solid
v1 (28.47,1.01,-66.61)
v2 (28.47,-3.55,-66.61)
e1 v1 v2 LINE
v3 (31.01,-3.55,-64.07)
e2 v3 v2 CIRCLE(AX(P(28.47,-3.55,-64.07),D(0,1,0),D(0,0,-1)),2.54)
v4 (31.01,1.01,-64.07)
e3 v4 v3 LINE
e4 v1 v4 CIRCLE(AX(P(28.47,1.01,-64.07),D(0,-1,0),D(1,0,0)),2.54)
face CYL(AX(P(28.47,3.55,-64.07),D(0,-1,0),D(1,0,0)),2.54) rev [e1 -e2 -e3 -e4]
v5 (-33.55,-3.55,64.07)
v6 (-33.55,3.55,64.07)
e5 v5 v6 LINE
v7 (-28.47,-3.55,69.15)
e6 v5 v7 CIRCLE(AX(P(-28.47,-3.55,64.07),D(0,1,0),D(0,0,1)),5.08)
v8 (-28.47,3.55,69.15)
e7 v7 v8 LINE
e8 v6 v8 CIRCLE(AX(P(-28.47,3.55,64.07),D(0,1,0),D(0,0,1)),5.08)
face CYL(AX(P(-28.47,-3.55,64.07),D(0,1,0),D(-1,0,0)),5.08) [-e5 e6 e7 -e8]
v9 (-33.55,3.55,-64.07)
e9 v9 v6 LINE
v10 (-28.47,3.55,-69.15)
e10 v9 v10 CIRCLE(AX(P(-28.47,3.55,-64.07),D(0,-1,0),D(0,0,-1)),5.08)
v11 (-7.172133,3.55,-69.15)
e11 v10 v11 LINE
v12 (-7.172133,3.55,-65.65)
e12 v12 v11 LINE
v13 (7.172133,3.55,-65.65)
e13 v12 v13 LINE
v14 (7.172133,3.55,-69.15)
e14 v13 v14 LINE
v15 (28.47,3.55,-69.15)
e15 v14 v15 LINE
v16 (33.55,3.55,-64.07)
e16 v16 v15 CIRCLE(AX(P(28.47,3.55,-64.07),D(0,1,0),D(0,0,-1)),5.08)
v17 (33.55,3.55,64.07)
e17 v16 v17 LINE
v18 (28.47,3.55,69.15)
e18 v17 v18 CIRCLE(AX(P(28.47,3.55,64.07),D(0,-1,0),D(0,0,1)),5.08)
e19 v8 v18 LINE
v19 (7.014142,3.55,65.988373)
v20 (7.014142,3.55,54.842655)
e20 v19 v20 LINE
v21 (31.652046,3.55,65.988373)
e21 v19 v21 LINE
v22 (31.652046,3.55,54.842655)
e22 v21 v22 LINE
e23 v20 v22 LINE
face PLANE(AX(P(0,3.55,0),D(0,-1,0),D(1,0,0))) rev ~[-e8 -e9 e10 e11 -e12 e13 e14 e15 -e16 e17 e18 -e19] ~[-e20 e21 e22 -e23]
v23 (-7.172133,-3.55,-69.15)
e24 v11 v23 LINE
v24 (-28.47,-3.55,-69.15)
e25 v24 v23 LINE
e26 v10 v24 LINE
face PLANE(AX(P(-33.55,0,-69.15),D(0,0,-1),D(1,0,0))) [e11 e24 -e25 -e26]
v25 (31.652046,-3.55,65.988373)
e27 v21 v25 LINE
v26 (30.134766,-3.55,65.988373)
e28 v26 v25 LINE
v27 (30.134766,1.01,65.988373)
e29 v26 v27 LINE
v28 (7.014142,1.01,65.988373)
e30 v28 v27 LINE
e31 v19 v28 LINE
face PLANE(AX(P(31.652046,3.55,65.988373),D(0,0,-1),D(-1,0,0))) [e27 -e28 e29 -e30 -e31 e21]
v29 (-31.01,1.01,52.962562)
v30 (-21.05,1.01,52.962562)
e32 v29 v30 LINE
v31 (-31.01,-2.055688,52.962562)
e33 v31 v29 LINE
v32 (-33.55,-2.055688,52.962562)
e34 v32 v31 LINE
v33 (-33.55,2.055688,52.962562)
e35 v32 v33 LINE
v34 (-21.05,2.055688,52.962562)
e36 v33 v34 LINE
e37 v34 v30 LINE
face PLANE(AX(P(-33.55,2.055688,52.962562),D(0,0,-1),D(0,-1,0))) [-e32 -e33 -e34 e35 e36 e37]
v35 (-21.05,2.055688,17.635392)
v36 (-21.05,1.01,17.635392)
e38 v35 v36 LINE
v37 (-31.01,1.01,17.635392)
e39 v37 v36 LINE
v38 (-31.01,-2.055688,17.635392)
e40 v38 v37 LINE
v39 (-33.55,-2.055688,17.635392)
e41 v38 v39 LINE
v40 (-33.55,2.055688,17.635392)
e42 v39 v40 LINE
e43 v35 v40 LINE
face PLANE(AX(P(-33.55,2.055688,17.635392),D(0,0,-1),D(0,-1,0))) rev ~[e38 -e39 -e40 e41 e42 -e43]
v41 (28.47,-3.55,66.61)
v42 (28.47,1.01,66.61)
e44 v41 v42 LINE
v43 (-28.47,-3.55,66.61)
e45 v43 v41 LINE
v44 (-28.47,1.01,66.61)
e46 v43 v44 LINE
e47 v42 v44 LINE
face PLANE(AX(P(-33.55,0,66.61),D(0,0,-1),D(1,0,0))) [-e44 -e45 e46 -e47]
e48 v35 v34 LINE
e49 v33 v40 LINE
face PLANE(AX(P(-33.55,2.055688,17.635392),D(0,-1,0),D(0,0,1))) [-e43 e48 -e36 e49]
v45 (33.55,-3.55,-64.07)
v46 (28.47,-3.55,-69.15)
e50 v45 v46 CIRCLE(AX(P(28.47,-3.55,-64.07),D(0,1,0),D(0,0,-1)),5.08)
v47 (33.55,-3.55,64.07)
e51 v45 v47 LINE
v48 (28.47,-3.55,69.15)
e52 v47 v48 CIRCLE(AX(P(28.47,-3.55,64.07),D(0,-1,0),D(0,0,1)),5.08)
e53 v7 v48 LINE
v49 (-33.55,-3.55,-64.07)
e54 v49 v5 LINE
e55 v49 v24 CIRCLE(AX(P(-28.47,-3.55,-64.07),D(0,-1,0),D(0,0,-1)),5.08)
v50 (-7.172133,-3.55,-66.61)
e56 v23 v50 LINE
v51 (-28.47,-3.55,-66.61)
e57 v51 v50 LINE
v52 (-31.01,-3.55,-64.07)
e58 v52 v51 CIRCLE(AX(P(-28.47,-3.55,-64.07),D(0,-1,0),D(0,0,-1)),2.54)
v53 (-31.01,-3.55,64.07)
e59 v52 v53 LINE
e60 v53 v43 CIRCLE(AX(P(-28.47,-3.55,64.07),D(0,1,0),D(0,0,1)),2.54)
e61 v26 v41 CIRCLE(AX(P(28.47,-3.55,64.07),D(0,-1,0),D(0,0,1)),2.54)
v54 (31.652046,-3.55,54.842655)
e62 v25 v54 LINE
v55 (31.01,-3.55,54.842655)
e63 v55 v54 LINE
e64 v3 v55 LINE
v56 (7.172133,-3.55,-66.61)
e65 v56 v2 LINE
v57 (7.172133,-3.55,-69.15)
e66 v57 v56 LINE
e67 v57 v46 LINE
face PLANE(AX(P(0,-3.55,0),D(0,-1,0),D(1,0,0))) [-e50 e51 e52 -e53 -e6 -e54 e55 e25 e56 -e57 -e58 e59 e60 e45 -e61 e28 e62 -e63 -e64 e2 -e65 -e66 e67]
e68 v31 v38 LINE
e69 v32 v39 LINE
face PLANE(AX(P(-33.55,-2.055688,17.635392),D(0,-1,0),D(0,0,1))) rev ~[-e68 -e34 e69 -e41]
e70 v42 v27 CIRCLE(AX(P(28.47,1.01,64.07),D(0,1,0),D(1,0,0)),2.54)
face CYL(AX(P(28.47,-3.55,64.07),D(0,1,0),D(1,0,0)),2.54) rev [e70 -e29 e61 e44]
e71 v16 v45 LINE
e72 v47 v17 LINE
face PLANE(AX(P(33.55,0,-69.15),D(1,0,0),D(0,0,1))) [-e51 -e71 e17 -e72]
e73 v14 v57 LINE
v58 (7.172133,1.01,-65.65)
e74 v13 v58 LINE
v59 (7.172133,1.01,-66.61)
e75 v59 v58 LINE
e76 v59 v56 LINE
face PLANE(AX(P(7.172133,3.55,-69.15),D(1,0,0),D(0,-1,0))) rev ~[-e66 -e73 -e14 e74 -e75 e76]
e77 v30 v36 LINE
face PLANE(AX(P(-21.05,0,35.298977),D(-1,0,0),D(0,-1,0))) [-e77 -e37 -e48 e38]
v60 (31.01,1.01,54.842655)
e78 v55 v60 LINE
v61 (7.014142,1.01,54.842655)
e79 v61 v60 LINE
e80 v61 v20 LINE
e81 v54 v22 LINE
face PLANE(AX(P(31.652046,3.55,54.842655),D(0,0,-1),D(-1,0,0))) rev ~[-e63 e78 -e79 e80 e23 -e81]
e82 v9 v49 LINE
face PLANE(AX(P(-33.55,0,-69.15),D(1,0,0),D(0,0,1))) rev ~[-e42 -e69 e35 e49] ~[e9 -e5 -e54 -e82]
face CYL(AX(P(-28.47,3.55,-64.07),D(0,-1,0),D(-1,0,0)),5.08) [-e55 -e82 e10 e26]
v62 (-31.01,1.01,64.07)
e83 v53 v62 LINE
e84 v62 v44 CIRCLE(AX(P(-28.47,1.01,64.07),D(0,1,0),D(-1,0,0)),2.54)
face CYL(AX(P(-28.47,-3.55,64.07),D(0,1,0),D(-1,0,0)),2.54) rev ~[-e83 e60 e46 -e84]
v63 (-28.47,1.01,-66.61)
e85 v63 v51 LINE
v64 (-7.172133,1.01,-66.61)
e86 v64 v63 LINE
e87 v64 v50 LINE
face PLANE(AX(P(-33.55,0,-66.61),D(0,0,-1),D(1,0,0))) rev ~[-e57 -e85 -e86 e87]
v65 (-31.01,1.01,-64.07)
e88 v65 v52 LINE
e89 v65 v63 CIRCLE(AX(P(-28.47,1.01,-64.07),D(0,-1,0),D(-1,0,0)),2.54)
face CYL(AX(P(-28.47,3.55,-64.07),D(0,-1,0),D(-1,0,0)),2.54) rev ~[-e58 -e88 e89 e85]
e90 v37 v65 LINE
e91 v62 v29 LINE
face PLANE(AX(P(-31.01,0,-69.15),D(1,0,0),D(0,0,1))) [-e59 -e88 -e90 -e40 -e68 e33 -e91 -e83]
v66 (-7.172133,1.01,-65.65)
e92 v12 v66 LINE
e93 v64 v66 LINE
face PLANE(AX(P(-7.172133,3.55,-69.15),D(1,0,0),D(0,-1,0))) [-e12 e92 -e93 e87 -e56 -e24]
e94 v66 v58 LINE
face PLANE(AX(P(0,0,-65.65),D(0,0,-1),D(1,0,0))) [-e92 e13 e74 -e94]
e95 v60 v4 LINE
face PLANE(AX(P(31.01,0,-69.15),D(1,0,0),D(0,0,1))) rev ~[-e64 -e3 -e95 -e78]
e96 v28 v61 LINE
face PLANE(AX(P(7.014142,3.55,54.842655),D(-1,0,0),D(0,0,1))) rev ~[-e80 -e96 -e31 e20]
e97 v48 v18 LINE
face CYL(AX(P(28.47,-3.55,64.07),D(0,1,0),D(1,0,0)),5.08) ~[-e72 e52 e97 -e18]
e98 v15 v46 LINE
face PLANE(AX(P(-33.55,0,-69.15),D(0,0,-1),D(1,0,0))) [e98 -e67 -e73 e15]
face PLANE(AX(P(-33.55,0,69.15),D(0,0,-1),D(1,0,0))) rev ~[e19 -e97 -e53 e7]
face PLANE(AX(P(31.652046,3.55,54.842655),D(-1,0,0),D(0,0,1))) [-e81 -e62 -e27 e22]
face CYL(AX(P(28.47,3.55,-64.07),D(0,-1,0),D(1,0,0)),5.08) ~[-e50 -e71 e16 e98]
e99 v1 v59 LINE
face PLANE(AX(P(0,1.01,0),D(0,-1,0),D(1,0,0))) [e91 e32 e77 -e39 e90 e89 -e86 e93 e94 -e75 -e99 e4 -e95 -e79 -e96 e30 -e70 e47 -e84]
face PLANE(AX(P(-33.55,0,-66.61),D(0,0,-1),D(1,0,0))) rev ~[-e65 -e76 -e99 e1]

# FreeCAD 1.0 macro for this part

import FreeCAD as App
import Part
import Sketcher

V = App.Vector


def edges_at(feature, points):
    """Names of the edges that pass closest to the given points."""
    edges = feature.Shape.Edges
    near = lambda p: min(range(len(edges)), key=lambda i: edges[i].distToShape(Part.Vertex(*p))[0])
    return sorted({f"Edge{near(p) + 1}" for p in points})


def faces_at(feature, points):
    """Names of the faces that lie closest to the given points."""
    faces = feature.Shape.Faces
    near = lambda p: min(range(len(faces)), key=lambda i: faces[i].distToShape(Part.Vertex(*p))[0])
    return sorted({f"Face{near(p) + 1}" for p in points})

doc = App.newDocument("Part")
body = doc.addObject("PartDesign::Body", "Body")

# Sketch on XZ plane
sketch1 = body.newObject("Sketcher::SketchObject", "Sketch")
sketch1.AttachmentSupport = (doc.getObject("XZ_Plane"), [""])
sketch1.MapMode = "FlatFace"
sketch1.addGeometry([
    Part.LineSegment(V(-34, 69, 0), V(-34, -69, 0)),
    Part.LineSegment(V(-34, -69, 0), V(34, -69, 0)),
    Part.LineSegment(V(34, -69, 0), V(34, 69, 0)),
    Part.LineSegment(V(34, 69, 0), V(-34, 69, 0)),
], False)
sketch1.addConstraint([
    Sketcher.Constraint("Coincident", 0, 2, 1, 1),
    Sketcher.Constraint("Coincident", 1, 2, 2, 1),
    Sketcher.Constraint("Coincident", 2, 2, 3, 1),
    Sketcher.Constraint("Coincident", 3, 2, 0, 1),
    Sketcher.Constraint("Vertical", 0),
    Sketcher.Constraint("Horizontal", 1),
    Sketcher.Constraint("Vertical", 2),
    Sketcher.Constraint("Horizontal", 3),
    Sketcher.Constraint("Symmetric", 0, 2, 2, 2, -1, 1),
    Sketcher.Constraint("DistanceX", 1, 1, 1, 2, 67.1),
    Sketcher.Constraint("DistanceY", 0, 2, 0, 1, 138.3),
])
pad1 = body.newObject("PartDesign::Pad", "Pad")
pad1.Profile = sketch1
pad1.Length = 7.1
pad1.Midplane = True
doc.recompute()

fillet = body.newObject("PartDesign::Fillet", "Fillet")
fillet.Base = (pad1, edges_at(pad1, [
    (-33.55, 0, 69.15),
    (33.55, 0, 69.15),
    (33.55, 0, -69.15),
    (-33.55, 0, -69.15),
]))
fillet.Radius = 5.08
doc.recompute()

thickness = body.newObject("PartDesign::Thickness", "Thickness")
thickness.Base = (fillet, faces_at(fillet, [(0, -3.55, 0)]))
thickness.Value = 2.54
thickness.Reversed = True
thickness.Join = "Arc"

# Sketch on XZ plane
sketch2 = body.newObject("Sketcher::SketchObject", "Sketch001")
sketch2.AttachmentSupport = (doc.getObject("XZ_Plane"), [""])
sketch2.MapMode = "FlatFace"
sketch2.AttachmentOffset = App.Placement(V(0, 0, -3.55), App.Rotation())
sketch2.addGeometry([
    Part.LineSegment(V(32, 66, 0), V(32, 55, 0)),
    Part.LineSegment(V(32, 55, 0), V(7, 55, 0)),
    Part.LineSegment(V(7, 55, 0), V(7, 66, 0)),
    Part.LineSegment(V(7, 66, 0), V(32, 66, 0)),
], False)
sketch2.addConstraint([
    Sketcher.Constraint("Coincident", 0, 2, 1, 1),
    Sketcher.Constraint("Coincident", 1, 2, 2, 1),
    Sketcher.Constraint("Coincident", 2, 2, 3, 1),
    Sketcher.Constraint("Coincident", 3, 2, 0, 1),
    Sketcher.Constraint("Vertical", 0),
    Sketcher.Constraint("Horizontal", 1),
    Sketcher.Constraint("Vertical", 2),
    Sketcher.Constraint("Horizontal", 3),
    Sketcher.Constraint("DistanceX", 1, 2, 1, 1, 24.637904),
    Sketcher.Constraint("DistanceY", 0, 2, 0, 1, 11.145718),
    Sketcher.Constraint("DistanceX", -1, 1, 1, 2, 7.014142),
    Sketcher.Constraint("DistanceY", -1, 1, 0, 2, 54.842655),
])
pocket1 = body.newObject("PartDesign::Pocket", "Pocket")
pocket1.Profile = sketch2
pocket1.Length = 25
pocket1.Midplane = True

# Sketch on XY plane
sketch3 = body.newObject("Sketcher::SketchObject", "Sketch002")
sketch3.AttachmentSupport = (doc.getObject("XY_Plane"), [""])
sketch3.MapMode = "FlatFace"
sketch3.AttachmentOffset = App.Placement(V(0, 0, -69.15), App.Rotation())
sketch3.addGeometry([
    Part.LineSegment(V(-7, -4, 0), V(-7, 4, 0)),
    Part.LineSegment(V(-7, 4, 0), V(7, 4, 0)),
    Part.LineSegment(V(7, 4, 0), V(7, -4, 0)),
    Part.LineSegment(V(7, -4, 0), V(-7, -4, 0)),
], False)
sketch3.addConstraint([
    Sketcher.Constraint("Coincident", 0, 2, 1, 1),
    Sketcher.Constraint("Coincident", 1, 2, 2, 1),
    Sketcher.Constraint("Coincident", 2, 2, 3, 1),
    Sketcher.Constraint("Coincident", 3, 2, 0, 1),
    Sketcher.Constraint("Vertical", 0),
    Sketcher.Constraint("Horizontal", 1),
    Sketcher.Constraint("Vertical", 2),
    Sketcher.Constraint("Horizontal", 3),
    Sketcher.Constraint("Symmetric", 0, 2, 2, 2, -1, 1),
    Sketcher.Constraint("DistanceY", 0, 1, 0, 2, 7.1),
    Sketcher.Constraint("DistanceX", 1, 1, 1, 2, 14.344266),
])
pocket2 = body.newObject("PartDesign::Pocket", "Pocket001")
pocket2.Profile = sketch3
pocket2.Length = 7
pocket2.Midplane = True

# Sketch on YZ plane
sketch4 = body.newObject("Sketcher::SketchObject", "Sketch003")
sketch4.AttachmentSupport = (doc.getObject("YZ_Plane"), [""])
sketch4.MapMode = "FlatFace"
sketch4.AttachmentOffset = App.Placement(V(0, 0, -33.55), App.Rotation())
sketch4.addGeometry([
    Part.LineSegment(V(2.1, 53, 0), V(2.1, 17.6, 0)),
    Part.LineSegment(V(2.1, 17.6, 0), V(-2.1, 17.6, 0)),
    Part.LineSegment(V(-2.1, 17.6, 0), V(-2.1, 53, 0)),
    Part.LineSegment(V(-2.1, 53, 0), V(2.1, 53, 0)),
], False)
sketch4.addConstraint([
    Sketcher.Constraint("Coincident", 0, 2, 1, 1),
    Sketcher.Constraint("Coincident", 1, 2, 2, 1),
    Sketcher.Constraint("Coincident", 2, 2, 3, 1),
    Sketcher.Constraint("Coincident", 3, 2, 0, 1),
    Sketcher.Constraint("Vertical", 0),
    Sketcher.Constraint("Horizontal", 1),
    Sketcher.Constraint("Vertical", 2),
    Sketcher.Constraint("Horizontal", 3),
    Sketcher.Constraint("DistanceY", 0, 2, 0, 1, 35.32717),
    Sketcher.Constraint("DistanceX", 1, 2, 1, 1, 4.111376),
    Sketcher.Constraint("DistanceX", -1, 1, 0, 2, 2.055688),
    Sketcher.Constraint("DistanceY", -1, 1, 0, 2, 17.635392),
])
pocket3 = body.newObject("PartDesign::Pocket", "Pocket002")
pocket3.Profile = sketch4
pocket3.Length = 25
pocket3.Midplane = True

doc.recompute()
